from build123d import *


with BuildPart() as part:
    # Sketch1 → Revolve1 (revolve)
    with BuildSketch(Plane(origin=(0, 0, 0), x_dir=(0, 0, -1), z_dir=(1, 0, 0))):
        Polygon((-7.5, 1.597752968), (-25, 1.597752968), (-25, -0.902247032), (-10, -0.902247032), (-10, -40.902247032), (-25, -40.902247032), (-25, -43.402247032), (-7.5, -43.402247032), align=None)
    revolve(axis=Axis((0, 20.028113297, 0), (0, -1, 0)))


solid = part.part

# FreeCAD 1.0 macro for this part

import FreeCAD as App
import Part
import Sketcher

V = App.Vector

doc = App.newDocument("Part")
body = doc.addObject("PartDesign::Body", "Body")

sketch1 = doc.addObject("Sketcher::SketchObject", "Sketch")
body.addObject(sketch1)
sketch1.AttachmentSupport = (doc.YZ_Plane, [""])
sketch1.MapMode = "FlatFace"
sketch1.addGeometry([
    Part.LineSegment(V(1.6, 7.5, 0), V(1.6, 25, 0)),
    Part.LineSegment(V(1.6, 25, 0), V(-0.9, 25, 0)),
    Part.LineSegment(V(-0.9, 25, 0), V(-0.9, 10, 0)),
    Part.LineSegment(V(-0.9, 10, 0), V(-40.9, 10, 0)),
    Part.LineSegment(V(-40.9, 10, 0), V(-40.9, 25, 0)),
    Part.LineSegment(V(-40.9, 25, 0), V(-43.4, 25, 0)),
    Part.LineSegment(V(-43.4, 25, 0), V(-43.4, 7.5, 0)),
    Part.LineSegment(V(-43.4, 7.5, 0), V(1.6, 7.5, 0)),
], False)
sketch1.addConstraint([
    Sketcher.Constraint("Coincident", 0, 2, 1, 1),
    Sketcher.Constraint("Coincident", 1, 2, 2, 1),
    Sketcher.Constraint("Coincident", 2, 2, 3, 1),
    Sketcher.Constraint("Coincident", 3, 2, 4, 1),
    Sketcher.Constraint("Coincident", 4, 2, 5, 1),
    Sketcher.Constraint("Coincident", 5, 2, 6, 1),
    Sketcher.Constraint("Coincident", 6, 2, 7, 1),
    Sketcher.Constraint("Coincident", 7, 2, 0, 1),
    Sketcher.Constraint("Vertical", 0),
    Sketcher.Constraint("Horizontal", 1),
    Sketcher.Constraint("Vertical", 2),
    Sketcher.Constraint("Horizontal", 3),
    Sketcher.Constraint("Vertical", 4),
    Sketcher.Constraint("Horizontal", 5),
    Sketcher.Constraint("Vertical", 6),
    Sketcher.Constraint("Horizontal", 7),
    Sketcher.Constraint("Horizontal", 1, 2, 4, 2),
    Sketcher.Constraint("Equal", 1, 5),
    Sketcher.Constraint("DistanceX", 3, 2, 3, 1, 40.0),
    Sketcher.Constraint("DistanceX", 7, 1, 7, 2, 45.0),
    Sketcher.Constraint("DistanceY", 2, 2, 2, 1, 15.0),
    Sketcher.Constraint("DistanceY", 0, 1, 0, 2, 17.5),
    Sketcher.Constraint("DistanceY", -1, 1, 0, 2, 25.0),
    Sketcher.Constraint("DistanceX", -1, 1, 0, 2, 1.597753),
])
revolution = doc.addObject("PartDesign::Revolution", "Revolution")
body.addObject(revolution)
revolution.Profile = sketch1
revolution.ReferenceAxis = (sketch1, ["H_Axis"])
revolution.Angle = 360

doc.recompute()
